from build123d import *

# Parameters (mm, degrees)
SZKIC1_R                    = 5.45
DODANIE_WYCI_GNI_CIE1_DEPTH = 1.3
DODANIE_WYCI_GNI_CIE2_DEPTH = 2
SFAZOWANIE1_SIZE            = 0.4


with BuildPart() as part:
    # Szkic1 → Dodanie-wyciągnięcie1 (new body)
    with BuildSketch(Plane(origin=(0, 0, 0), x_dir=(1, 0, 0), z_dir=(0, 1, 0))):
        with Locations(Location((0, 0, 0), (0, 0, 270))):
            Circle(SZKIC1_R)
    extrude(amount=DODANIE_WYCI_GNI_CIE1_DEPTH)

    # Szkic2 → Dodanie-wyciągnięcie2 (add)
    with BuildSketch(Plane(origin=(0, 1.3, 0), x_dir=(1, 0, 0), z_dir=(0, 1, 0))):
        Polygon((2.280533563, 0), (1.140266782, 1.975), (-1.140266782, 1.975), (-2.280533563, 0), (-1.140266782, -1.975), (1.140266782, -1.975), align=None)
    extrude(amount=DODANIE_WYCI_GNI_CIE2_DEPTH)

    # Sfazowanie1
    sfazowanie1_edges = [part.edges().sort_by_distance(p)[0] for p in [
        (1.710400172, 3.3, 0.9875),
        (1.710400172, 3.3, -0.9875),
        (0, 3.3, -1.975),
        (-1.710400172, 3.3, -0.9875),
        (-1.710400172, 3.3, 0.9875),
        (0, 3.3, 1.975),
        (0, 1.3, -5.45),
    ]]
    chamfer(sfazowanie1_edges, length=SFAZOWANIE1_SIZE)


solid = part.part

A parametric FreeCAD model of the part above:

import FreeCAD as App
import Part
import Sketcher

V = App.Vector
Q = App.Units.Quantity


def edges_at(feature, points):
    """Names of the edges that pass closest to the given points."""
    edges = feature.Shape.Edges
    near = lambda p: min(range(len(edges)), key=lambda i: edges[i].distToShape(Part.Vertex(*p))[0])
    return sorted({f"Edge{near(p) + 1}" for p in points})

doc = App.newDocument("Part")
body = doc.addObject("PartDesign::Body", "Body")

sketch1 = body.newObject("Sketcher::SketchObject", "Sketch")
sketch1.AttachmentSupport = (doc.getObject("XZ_Plane"), [""])
sketch1.MapMode = "FlatFace"
sketch1.addGeometry(Part.Circle(V(0, 0, 0), V(0, 0, 1), 5.45), False)
sketch1.addConstraint(Sketcher.Constraint("Coincident", 0, 3, -1, 1))
sketch1.addConstraint(Sketcher.Constraint("Diameter", 0, 10.9))
pad1 = body.newObject("PartDesign::Pad", "Pad")
pad1.Profile = sketch1
pad1.Length = 1.3
pad1.Reversed = True

sketch2 = body.newObject("Sketcher::SketchObject", "Sketch001")
sketch2.AttachmentSupport = (doc.getObject("XZ_Plane"), [""])
sketch2.MapMode = "FlatFace"
sketch2.AttachmentOffset = App.Placement(V(0, 0, -1.3), App.Rotation())
sketch2.addGeometry(Part.LineSegment(V(2.280534, 0, 0), V(1.140267, -1.975, 0)), False)
sketch2.addGeometry(Part.LineSegment(V(1.140267, -1.975, 0), V(-1.140267, -1.975, 0)), False)
sketch2.addGeometry(Part.LineSegment(V(-1.140267, -1.975, 0), V(-2.280534, 0, 0)), False)
sketch2.addGeometry(Part.LineSegment(V(-2.280534, 0, 0), V(-1.140267, 1.975, 0)), False)
sketch2.addGeometry(Part.LineSegment(V(-1.140267, 1.975, 0), V(1.140267, 1.975, 0)), False)
sketch2.addGeometry(Part.LineSegment(V(1.140267, 1.975, 0), V(2.280534, 0, 0)), False)
sketch2.addConstraint(Sketcher.Constraint("Coincident", 0, 2, 1, 1))
sketch2.addConstraint(Sketcher.Constraint("Coincident", 1, 2, 2, 1))
sketch2.addConstraint(Sketcher.Constraint("Coincident", 2, 2, 3, 1))
sketch2.addConstraint(Sketcher.Constraint("Coincident", 3, 2, 4, 1))
sketch2.addConstraint(Sketcher.Constraint("Coincident", 4, 2, 5, 1))
sketch2.addConstraint(Sketcher.Constraint("Coincident", 5, 2, 0, 1))
sketch2.addConstraint(Sketcher.Constraint("Horizontal", 1))
sketch2.addConstraint(Sketcher.Constraint("Horizontal", 4))
sketch2.addConstraint(Sketcher.Constraint("Symmetric", 0, 2, 3, 2, -1, 1))
sketch2.addConstraint(Sketcher.Constraint("Symmetric", 2, 2, 5, 2, -1, 1))
sketch2.addConstraint(Sketcher.Constraint("PointOnObject", 2, 2, -1))
sketch2.addConstraint(Sketcher.Constraint("Parallel", 2, 5))
sketch2.addConstraint(Sketcher.Constraint("Vertical", 1, 2, 3, 2))
sketch2.addConstraint(Sketcher.Constraint("Angle", 0, Q("-120 deg")))
sketch2.addConstraint(Sketcher.Constraint("DistanceY", 1, 2, 3, 2, 3.95))
sketch2.addConstraint(Sketcher.Constraint("DistanceX", 2, 2, 0, 2, 3.4208))
pad2 = body.newObject("PartDesign::Pad", "Pad001")
pad2.Profile = sketch2
pad2.Length = 2
pad2.Reversed = True
doc.recompute()

chamfer = body.newObject("PartDesign::Chamfer", "Chamfer")
chamfer.Base = (pad2, edges_at(pad2, [
    (1.71, 3.3, 0.988),
    (1.71, 3.3, -0.988),
    (0, 3.3, -1.975),
    (-1.71, 3.3, -0.988),
    (-1.71, 3.3, 0.988),
    (0, 3.3, 1.975),
    (0, 1.3, -5.45),
]))
chamfer.Size = 0.4

doc.recompute()
